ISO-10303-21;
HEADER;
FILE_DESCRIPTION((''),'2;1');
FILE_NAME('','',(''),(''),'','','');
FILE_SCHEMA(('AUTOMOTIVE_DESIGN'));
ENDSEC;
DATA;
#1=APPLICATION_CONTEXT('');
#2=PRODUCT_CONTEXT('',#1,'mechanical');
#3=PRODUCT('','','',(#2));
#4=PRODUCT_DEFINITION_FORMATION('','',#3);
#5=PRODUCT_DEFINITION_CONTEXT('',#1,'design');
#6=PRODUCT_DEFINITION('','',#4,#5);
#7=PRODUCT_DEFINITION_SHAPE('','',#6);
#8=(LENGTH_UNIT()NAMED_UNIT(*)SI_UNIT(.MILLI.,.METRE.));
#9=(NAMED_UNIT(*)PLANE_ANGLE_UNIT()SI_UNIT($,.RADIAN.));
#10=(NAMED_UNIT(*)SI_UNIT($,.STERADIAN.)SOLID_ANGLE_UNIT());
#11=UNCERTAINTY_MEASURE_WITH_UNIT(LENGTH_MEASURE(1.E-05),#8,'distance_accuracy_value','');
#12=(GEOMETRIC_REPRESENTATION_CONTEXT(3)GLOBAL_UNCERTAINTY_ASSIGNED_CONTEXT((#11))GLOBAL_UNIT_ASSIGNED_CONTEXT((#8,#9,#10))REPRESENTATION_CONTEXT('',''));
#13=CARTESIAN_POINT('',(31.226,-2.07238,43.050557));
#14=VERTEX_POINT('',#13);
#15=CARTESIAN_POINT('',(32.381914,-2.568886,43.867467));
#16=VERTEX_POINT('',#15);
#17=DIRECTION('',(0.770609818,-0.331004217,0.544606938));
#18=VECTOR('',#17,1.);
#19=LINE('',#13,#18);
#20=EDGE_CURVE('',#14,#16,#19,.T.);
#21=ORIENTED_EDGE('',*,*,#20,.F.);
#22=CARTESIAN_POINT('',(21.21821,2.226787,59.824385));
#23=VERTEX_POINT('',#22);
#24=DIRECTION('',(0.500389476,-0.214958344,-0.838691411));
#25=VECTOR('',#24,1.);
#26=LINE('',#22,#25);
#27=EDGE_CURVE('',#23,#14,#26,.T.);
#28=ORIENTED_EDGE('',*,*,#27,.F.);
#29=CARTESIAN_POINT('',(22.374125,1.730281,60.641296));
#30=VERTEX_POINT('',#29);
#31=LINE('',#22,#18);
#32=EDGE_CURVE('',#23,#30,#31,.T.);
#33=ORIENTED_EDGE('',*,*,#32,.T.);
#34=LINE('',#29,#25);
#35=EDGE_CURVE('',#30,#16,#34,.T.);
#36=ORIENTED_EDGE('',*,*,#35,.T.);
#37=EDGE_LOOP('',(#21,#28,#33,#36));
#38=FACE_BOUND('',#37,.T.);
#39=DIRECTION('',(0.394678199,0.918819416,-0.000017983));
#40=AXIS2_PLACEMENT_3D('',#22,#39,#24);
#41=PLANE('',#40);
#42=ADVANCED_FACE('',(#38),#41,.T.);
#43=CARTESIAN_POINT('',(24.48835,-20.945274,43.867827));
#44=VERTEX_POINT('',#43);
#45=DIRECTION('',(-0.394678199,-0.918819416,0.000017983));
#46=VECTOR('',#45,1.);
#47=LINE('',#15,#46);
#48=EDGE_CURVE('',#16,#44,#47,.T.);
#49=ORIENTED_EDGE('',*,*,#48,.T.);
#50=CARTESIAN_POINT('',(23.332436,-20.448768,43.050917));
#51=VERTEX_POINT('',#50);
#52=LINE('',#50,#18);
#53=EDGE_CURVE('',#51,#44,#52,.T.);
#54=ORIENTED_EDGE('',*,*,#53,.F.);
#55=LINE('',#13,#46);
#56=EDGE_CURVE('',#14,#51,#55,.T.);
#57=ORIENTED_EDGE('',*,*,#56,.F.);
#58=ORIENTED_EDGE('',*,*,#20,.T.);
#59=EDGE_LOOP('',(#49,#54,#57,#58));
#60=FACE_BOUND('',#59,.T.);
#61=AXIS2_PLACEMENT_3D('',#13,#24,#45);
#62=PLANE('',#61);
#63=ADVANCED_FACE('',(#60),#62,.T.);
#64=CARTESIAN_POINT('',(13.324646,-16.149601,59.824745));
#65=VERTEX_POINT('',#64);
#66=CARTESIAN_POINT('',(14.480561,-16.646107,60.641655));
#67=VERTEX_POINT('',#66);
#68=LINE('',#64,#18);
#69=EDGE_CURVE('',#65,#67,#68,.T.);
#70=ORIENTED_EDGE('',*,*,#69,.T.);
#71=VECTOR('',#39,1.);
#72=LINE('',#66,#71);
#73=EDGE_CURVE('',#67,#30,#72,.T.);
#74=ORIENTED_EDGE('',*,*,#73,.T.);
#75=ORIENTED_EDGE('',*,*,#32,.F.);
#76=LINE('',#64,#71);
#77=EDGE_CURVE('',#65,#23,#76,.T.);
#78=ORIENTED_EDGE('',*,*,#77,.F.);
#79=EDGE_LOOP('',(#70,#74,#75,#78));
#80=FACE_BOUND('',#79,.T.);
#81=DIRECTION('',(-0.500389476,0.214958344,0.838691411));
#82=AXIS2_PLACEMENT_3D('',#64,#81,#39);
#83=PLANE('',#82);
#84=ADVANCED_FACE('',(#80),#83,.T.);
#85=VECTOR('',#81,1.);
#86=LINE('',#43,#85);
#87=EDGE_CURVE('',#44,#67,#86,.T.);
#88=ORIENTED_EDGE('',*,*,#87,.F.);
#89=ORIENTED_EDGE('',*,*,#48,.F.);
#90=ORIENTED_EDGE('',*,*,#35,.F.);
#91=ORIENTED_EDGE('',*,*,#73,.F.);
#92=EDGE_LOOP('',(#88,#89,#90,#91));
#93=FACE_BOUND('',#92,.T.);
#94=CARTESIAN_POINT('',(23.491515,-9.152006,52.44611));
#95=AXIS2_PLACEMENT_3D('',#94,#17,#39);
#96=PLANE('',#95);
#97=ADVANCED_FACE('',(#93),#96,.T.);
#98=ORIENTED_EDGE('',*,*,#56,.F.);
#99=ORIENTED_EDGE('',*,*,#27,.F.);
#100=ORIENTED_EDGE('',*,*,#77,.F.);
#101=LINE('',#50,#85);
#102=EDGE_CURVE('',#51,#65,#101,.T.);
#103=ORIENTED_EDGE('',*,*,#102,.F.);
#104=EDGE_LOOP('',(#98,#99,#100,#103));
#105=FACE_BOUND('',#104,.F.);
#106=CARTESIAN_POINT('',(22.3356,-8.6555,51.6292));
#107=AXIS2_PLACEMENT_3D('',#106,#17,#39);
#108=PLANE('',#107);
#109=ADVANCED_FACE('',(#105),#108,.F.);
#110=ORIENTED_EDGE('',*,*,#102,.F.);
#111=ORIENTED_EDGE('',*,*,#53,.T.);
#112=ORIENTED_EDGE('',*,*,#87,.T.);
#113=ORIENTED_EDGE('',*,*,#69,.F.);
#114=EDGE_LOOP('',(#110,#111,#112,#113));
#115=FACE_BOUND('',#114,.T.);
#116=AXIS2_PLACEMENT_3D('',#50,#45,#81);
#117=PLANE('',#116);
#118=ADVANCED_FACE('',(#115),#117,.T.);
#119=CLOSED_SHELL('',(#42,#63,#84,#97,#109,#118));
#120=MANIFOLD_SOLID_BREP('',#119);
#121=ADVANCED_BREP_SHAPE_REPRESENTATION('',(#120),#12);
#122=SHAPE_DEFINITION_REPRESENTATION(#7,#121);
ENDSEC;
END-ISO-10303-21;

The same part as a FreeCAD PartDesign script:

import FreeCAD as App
import Part
import Sketcher
from FreeCAD import Vector


def add_polygon(sketch, points):
    """Adds a closed chain of lines whose ends are joined by coincident constraints."""
    first, n = sketch.GeometryCount, len(points)
    for a, b in zip(points, points[1:] + points[:1]):
        sketch.addGeometry(Part.LineSegment(App.Vector(*a, 0), App.Vector(*b, 0)), False)
    for i in range(n):
        sketch.addConstraint(Sketcher.Constraint("Coincident", first + i, 2, first + (i + 1) % n, 1))

doc = App.newDocument("Part")
body = doc.addObject("PartDesign::Body", "Body")

sketch1 = body.newObject("Sketcher::SketchObject", "Sketch")
sketch1.Placement = App.Placement(Vector(22.3356, -8.6555, 51.6292), App.Rotation(Vector(0.394678199, 0.918819416, -0.000017983), Vector(-0.500389476, 0.214958343, 0.838691411), Vector(0.770609818, -0.331004217, 0.544606938), "ZXY"))
add_polygon(sketch1, [(9.5577, 9.7716), (-10.4423, 9.7716), (-10.4423, -10.2284), (9.5577, -10.2284)])
sketch1.addConstraint([
    Sketcher.Constraint("Horizontal", 0),
    Sketcher.Constraint("Vertical", 1),
    Sketcher.Constraint("Horizontal", 2),
    Sketcher.Constraint("Vertical", 3),
    Sketcher.Constraint("Equal", 2, 1),
    Sketcher.Constraint("DistanceX", 0, 2, 0, 1, 20.0),
    Sketcher.Constraint("DistanceX", 0, 2, -1, 1, 10.4423),
    Sketcher.Constraint("DistanceY", -1, 1, 0, 2, 9.7716),
])
pad1 = body.newObject("PartDesign::Pad", "Pad")
pad1.Profile = sketch1
pad1.Length = 1.5

doc.recompute()
